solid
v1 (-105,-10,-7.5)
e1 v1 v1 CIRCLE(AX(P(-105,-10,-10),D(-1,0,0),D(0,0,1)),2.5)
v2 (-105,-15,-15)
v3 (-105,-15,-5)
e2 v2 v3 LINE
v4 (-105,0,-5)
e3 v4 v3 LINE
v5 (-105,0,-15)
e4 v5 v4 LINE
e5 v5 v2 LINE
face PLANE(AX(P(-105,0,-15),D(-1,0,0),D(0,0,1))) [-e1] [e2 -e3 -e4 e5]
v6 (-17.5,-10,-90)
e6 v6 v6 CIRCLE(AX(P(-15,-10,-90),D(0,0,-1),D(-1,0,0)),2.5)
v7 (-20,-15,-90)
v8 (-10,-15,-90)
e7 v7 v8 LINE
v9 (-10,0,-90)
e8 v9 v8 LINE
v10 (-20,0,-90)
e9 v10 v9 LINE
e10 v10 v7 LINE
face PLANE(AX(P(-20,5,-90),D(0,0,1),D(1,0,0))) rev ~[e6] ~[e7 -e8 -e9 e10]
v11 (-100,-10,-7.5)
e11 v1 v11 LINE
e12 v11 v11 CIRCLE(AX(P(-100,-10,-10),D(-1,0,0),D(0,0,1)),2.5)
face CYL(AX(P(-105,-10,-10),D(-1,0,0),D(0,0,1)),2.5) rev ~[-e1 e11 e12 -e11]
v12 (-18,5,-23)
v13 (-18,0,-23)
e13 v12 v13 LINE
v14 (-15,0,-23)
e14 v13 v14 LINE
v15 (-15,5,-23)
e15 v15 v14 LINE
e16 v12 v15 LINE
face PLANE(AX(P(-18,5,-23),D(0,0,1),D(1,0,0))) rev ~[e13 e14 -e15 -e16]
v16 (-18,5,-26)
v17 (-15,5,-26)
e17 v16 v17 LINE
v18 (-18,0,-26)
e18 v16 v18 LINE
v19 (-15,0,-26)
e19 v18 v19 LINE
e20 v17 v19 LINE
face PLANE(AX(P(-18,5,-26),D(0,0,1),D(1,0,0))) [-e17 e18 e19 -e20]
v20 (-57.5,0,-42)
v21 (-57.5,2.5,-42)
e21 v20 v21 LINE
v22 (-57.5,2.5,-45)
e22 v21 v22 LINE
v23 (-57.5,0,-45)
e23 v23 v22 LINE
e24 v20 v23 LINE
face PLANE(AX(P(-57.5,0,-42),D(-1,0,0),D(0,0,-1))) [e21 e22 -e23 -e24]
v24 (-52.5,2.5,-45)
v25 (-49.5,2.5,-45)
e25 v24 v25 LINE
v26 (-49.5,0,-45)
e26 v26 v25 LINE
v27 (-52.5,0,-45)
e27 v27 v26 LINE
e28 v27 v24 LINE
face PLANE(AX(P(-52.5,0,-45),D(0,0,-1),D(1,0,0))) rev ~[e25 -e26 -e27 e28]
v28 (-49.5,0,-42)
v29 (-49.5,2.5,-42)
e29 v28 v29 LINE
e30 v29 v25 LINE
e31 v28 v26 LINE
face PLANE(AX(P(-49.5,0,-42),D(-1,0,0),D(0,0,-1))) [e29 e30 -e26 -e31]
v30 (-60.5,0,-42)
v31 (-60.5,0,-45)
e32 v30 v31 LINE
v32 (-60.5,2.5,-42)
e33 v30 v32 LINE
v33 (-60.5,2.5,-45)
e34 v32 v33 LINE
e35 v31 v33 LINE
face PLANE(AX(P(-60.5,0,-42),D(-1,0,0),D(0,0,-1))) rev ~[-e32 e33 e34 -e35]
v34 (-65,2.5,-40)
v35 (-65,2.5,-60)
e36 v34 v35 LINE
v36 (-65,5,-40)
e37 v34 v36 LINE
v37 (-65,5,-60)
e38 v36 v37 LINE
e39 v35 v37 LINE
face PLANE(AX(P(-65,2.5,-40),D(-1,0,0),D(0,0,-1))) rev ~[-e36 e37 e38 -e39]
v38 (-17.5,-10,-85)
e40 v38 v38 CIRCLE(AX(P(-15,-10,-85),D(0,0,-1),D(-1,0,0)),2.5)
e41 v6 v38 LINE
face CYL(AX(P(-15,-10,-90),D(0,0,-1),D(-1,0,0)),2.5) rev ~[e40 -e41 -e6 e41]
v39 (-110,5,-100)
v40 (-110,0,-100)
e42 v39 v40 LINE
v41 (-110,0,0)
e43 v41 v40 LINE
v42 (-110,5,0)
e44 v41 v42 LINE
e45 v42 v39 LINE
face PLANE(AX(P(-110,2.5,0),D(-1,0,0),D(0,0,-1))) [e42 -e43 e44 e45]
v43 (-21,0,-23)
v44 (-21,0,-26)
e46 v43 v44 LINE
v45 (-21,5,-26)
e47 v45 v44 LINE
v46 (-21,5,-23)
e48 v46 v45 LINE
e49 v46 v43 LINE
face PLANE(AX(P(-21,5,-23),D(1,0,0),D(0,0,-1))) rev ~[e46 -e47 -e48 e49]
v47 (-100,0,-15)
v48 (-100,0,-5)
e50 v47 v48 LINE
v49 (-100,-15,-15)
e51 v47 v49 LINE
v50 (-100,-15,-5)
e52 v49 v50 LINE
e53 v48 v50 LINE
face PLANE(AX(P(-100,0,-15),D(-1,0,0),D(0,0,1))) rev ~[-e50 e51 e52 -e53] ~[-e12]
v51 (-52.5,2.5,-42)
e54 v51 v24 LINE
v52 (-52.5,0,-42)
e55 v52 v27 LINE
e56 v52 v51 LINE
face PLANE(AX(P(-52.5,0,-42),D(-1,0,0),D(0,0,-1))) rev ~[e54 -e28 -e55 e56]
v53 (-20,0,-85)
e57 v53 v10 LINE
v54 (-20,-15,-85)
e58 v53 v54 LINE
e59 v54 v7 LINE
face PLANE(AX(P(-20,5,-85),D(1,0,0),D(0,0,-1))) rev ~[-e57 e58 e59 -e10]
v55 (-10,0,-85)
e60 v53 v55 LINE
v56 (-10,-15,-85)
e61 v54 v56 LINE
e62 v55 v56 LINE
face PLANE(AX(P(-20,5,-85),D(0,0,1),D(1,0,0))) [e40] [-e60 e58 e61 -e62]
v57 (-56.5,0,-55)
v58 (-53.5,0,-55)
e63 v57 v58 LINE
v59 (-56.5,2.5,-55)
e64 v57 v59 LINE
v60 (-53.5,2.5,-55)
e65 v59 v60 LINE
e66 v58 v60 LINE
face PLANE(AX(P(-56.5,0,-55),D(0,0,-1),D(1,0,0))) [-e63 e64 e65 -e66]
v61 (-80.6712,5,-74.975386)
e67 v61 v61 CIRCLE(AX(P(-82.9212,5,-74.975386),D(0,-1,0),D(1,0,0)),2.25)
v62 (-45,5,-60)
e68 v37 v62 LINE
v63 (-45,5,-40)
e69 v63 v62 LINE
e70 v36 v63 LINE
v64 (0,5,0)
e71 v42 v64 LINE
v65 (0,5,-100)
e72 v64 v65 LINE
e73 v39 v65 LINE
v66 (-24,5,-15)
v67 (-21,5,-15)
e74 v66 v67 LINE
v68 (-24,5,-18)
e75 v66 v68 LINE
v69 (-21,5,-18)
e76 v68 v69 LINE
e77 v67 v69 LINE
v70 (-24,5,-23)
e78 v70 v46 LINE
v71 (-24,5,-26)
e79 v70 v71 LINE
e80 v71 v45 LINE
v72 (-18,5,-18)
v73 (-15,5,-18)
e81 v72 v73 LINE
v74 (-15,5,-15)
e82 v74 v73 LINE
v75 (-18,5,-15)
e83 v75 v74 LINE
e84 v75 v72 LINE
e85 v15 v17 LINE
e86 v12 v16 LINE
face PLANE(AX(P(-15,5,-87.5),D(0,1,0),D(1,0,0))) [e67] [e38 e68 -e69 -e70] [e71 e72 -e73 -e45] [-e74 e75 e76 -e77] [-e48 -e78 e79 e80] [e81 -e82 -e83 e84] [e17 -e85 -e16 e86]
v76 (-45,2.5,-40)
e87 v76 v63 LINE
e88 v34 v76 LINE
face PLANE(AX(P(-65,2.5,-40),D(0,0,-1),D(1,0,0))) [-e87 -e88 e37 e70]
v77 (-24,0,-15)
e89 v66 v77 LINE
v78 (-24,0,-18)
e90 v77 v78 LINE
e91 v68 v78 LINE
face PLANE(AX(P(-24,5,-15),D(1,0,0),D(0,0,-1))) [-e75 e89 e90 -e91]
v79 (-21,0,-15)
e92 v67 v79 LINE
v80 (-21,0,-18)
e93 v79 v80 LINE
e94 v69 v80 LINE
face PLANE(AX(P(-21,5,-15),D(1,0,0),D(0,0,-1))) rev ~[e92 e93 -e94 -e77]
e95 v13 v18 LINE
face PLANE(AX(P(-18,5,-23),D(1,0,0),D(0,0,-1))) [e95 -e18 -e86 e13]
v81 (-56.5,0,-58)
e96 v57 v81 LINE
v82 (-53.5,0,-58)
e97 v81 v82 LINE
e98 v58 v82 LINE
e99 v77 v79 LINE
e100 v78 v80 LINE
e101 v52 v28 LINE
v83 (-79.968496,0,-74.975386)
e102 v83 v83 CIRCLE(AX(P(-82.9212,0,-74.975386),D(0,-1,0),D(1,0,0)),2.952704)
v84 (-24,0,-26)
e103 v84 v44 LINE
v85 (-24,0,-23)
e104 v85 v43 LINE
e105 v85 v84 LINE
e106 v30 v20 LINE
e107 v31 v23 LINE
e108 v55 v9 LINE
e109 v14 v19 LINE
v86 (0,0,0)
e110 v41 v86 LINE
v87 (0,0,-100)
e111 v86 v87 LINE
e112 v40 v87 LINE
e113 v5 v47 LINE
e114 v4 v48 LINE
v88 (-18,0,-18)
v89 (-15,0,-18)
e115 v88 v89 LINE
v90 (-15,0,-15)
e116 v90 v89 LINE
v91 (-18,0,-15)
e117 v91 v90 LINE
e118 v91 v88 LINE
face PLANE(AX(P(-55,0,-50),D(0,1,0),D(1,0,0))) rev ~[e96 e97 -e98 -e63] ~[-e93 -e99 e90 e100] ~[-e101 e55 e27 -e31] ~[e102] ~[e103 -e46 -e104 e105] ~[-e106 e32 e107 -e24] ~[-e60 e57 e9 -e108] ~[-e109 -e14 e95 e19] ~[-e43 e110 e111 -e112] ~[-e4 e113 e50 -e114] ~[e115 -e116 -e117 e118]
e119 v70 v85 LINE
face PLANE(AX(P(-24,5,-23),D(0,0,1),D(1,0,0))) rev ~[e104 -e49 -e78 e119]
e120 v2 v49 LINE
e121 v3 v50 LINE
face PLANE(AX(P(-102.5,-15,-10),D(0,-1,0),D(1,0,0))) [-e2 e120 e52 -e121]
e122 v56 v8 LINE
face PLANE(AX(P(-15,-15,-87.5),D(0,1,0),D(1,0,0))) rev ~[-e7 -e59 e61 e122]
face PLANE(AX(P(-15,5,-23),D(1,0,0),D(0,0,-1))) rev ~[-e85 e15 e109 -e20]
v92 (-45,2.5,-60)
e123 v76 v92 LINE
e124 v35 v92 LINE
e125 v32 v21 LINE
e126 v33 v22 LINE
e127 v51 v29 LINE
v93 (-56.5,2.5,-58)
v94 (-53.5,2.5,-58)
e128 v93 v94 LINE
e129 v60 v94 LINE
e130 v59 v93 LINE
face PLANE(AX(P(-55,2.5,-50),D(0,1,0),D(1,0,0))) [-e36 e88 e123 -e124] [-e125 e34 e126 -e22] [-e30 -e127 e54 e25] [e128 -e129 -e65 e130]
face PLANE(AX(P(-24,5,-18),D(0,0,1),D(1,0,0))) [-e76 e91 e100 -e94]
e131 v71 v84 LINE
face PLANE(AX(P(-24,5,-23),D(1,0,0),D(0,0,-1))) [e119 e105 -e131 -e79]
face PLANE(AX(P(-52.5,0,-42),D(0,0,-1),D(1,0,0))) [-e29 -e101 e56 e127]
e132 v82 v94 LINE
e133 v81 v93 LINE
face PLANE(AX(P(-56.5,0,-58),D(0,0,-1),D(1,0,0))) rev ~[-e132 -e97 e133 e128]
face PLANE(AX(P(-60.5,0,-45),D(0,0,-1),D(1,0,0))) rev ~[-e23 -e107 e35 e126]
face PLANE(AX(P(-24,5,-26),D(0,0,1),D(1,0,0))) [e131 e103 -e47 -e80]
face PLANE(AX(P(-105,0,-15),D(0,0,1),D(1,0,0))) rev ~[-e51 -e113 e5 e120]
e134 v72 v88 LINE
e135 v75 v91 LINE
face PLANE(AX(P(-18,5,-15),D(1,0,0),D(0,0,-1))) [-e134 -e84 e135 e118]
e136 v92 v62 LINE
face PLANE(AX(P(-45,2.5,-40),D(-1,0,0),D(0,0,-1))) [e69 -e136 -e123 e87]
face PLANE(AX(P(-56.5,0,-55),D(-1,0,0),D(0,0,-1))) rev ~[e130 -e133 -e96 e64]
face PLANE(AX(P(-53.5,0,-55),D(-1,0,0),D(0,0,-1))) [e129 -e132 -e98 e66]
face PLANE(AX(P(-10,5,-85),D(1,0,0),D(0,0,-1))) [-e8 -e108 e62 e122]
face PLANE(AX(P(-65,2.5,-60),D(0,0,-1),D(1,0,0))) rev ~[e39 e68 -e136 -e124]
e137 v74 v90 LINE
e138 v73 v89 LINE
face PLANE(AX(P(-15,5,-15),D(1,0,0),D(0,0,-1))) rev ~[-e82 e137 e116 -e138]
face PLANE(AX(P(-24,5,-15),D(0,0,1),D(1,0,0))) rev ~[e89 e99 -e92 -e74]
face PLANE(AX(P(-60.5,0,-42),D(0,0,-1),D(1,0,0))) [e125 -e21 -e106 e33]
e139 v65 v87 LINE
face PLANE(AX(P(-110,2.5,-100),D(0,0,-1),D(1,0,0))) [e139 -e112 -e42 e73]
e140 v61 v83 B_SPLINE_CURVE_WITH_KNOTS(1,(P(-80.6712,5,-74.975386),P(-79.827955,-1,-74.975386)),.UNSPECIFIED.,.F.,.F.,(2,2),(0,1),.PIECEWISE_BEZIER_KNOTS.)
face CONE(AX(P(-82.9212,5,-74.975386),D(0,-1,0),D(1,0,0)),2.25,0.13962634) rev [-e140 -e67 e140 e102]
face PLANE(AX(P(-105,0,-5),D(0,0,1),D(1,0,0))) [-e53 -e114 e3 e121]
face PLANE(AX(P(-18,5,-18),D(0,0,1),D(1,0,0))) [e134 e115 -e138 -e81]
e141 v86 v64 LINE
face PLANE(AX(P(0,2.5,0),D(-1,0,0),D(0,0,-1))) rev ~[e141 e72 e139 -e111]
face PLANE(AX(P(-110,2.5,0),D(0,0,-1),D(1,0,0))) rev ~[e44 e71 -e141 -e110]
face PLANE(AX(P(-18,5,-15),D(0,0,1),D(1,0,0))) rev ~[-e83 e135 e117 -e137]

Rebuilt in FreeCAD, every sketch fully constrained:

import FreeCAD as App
import Part
import Sketcher
from FreeCAD import Vector
Q = App.Units.Quantity


def add_polygon(sketch, points):
    """Adds a closed chain of lines whose ends are joined by coincident constraints."""
    first, n = sketch.GeometryCount, len(points)
    for a, b in zip(points, points[1:] + points[:1]):
        sketch.addGeometry(Part.LineSegment(App.Vector(*a, 0), App.Vector(*b, 0)), False)
    for i in range(n):
        sketch.addConstraint(Sketcher.Constraint("Coincident", first + i, 2, first + (i + 1) % n, 1))

doc = App.newDocument("Part")
body = doc.addObject("PartDesign::Body", "Body")

# Sketch on XZ plane
sketch1 = body.newObject("Sketcher::SketchObject", "Sketch")
sketch1.AttachmentSupport = (doc.getObject("XZ_Plane"), [""])
sketch1.MapMode = "FlatFace"
add_polygon(sketch1, [(-110, -100), (-110, 0), (0, 0), (0, -100)])  # lines 0-3
add_polygon(sketch1, [(-57.5, -42), (-60.5, -42), (-60.5, -45), (-57.5, -45)])  # lines 4-7
add_polygon(sketch1, [(-49.5, -42), (-52.5, -42), (-52.5, -45), (-49.5, -45)])  # lines 8-11
add_polygon(sketch1, [(-53.5, -55), (-56.5, -55), (-56.5, -58), (-53.5, -58)])  # lines 12-15
sketch1.addConstraint([
    Sketcher.Constraint("Vertical", 0),
    Sketcher.Constraint("Horizontal", 1),
    Sketcher.Constraint("Vertical", 2),
    Sketcher.Constraint("Horizontal", 3),
    Sketcher.Constraint("Horizontal", 4),
    Sketcher.Constraint("Vertical", 5),
    Sketcher.Constraint("Horizontal", 6),
    Sketcher.Constraint("Vertical", 7),
    Sketcher.Constraint("Horizontal", 8),
    Sketcher.Constraint("Vertical", 9),
    Sketcher.Constraint("Horizontal", 10),
    Sketcher.Constraint("Vertical", 11),
    Sketcher.Constraint("Horizontal", 12),
    Sketcher.Constraint("Vertical", 13),
    Sketcher.Constraint("Horizontal", 14),
    Sketcher.Constraint("Vertical", 15),
    Sketcher.Constraint("Coincident", 1, 2, -1, 1),
    Sketcher.Constraint("Horizontal", 7, 2, 8, 2),
    Sketcher.Constraint("Horizontal", 6, 2, 9, 2),
    Sketcher.Constraint("Equal", 6, 8),
    Sketcher.Constraint("Equal", 10, 12),
    Sketcher.Constraint("Equal", 14, 5),
    Sketcher.Constraint("Equal", 11, 13),
    Sketcher.Constraint("DistanceX", 1, 1, 1, 2, Q("110 mm")),
    Sketcher.Constraint("DistanceX", 4, 2, 4, 1, Q("3 mm")),
    Sketcher.Constraint("DistanceY", 0, 1, 0, 2, Q("100 mm")),
    Sketcher.Constraint("DistanceY", 4, 2, -1, 1, Q("42 mm")),
    Sketcher.Constraint("DistanceY", 12, 2, -1, 1, Q("55 mm")),
    Sketcher.Constraint("DistanceX", 7, 2, 8, 2, Q("5 mm")),
    Sketcher.Constraint("DistanceX", 6, 2, 12, 2, Q("1 mm")),
    Sketcher.Constraint("DistanceX", 4, 2, -1, 1, Q("60.5 mm")),
])
pad1 = body.newObject("PartDesign::Pad", "Pad")
pad1.Profile = sketch1
pad1.Length = 2.5
pad1.Reversed = True

# Sketch on XZ plane
sketch2 = body.newObject("Sketcher::SketchObject", "Sketch001")
sketch2.AttachmentSupport = (doc.getObject("XZ_Plane"), [""])
sketch2.MapMode = "FlatFace"
sketch2.AttachmentOffset = App.Placement(Vector(0, 0, -2.5), App.Rotation())
add_polygon(sketch2, [(-110, -100), (-110, 0), (0, 0), (0, -100)])  # lines 0-3
add_polygon(sketch2, [(-45, -40), (-65, -40), (-65, -60), (-45, -60)])  # lines 4-7
sketch2.addConstraint([
    Sketcher.Constraint("Vertical", 0),
    Sketcher.Constraint("Horizontal", 1),
    Sketcher.Constraint("Vertical", 2),
    Sketcher.Constraint("Horizontal", 3),
    Sketcher.Constraint("Horizontal", 4),
    Sketcher.Constraint("Vertical", 5),
    Sketcher.Constraint("Horizontal", 6),
    Sketcher.Constraint("Vertical", 7),
    Sketcher.Constraint("Coincident", 1, 2, -1, 1),
    Sketcher.Constraint("Equal", 6, 5),
    Sketcher.Constraint("DistanceX", 1, 1, 1, 2, Q("110 mm")),
    Sketcher.Constraint("DistanceX", 4, 2, 4, 1, Q("20 mm")),
    Sketcher.Constraint("DistanceY", 0, 1, 0, 2, Q("100 mm")),
    Sketcher.Constraint("DistanceX", 4, 2, -1, 1, Q("65 mm")),
    Sketcher.Constraint("DistanceY", 4, 2, -1, 1, Q("40 mm")),
])
pad2 = body.newObject("PartDesign::Pad", "Pad001")
pad2.Profile = sketch2
pad2.Length = 2.5
pad2.Reversed = True

# Sketch on XZ plane
sketch3 = body.newObject("Sketcher::SketchObject", "Sketch002")
sketch3.AttachmentSupport = (doc.getObject("XZ_Plane"), [""])
sketch3.MapMode = "FlatFace"
sketch3.AttachmentOffset = App.Placement(Vector(0, 0, -5), App.Rotation())
sketch3.addGeometry(Part.Circle(Vector(-82.9, -75, 0), Vector(0, 0, 1), 2.2), False)
sketch3.addConstraint([
    Sketcher.Constraint("Diameter", 0, Q("4.5 mm")),
    Sketcher.Constraint("DistanceX", 0, 3, -1, 1, Q("82.9212 mm")),
    Sketcher.Constraint("DistanceY", 0, 3, -1, 1, Q("74.975386 mm")),
])
pocket1 = body.newObject("PartDesign::Pocket", "Pocket")
pocket1.Profile = sketch3
pocket1.Type = "ThroughAll"
pocket1.Reversed = True
pocket1.TaperAngle = 8

# Sketch on XZ plane
sketch4 = body.newObject("Sketcher::SketchObject", "Sketch003")
sketch4.AttachmentSupport = (doc.getObject("XZ_Plane"), [""])
sketch4.MapMode = "FlatFace"
sketch4.AttachmentOffset = App.Placement(Vector(0, 0, -5), App.Rotation())
add_polygon(sketch4, [(-24, -26), (-24, -23), (-21, -23), (-21, -26)])  # lines 0-3
add_polygon(sketch4, [(-18, -26), (-18, -23), (-15, -23), (-15, -26)])  # lines 4-7
add_polygon(sketch4, [(-24, -18), (-24, -15), (-21, -15), (-21, -18)])  # lines 8-11
add_polygon(sketch4, [(-18, -18), (-18, -15), (-15, -15), (-15, -18)])  # lines 12-15
sketch4.addConstraint([
    Sketcher.Constraint("Vertical", 0),
    Sketcher.Constraint("Horizontal", 1),
    Sketcher.Constraint("Vertical", 2),
    Sketcher.Constraint("Horizontal", 3),
    Sketcher.Constraint("Vertical", 4),
    Sketcher.Constraint("Horizontal", 5),
    Sketcher.Constraint("Vertical", 6),
    Sketcher.Constraint("Horizontal", 7),
    Sketcher.Constraint("Vertical", 8),
    Sketcher.Constraint("Horizontal", 9),
    Sketcher.Constraint("Vertical", 10),
    Sketcher.Constraint("Horizontal", 11),
    Sketcher.Constraint("Vertical", 12),
    Sketcher.Constraint("Horizontal", 13),
    Sketcher.Constraint("Vertical", 14),
    Sketcher.Constraint("Horizontal", 15),
    Sketcher.Constraint("Horizontal", 1, 2, 4, 2),
    Sketcher.Constraint("Horizontal", 3, 2, 6, 2),
    Sketcher.Constraint("Horizontal", 9, 2, 12, 2),
    Sketcher.Constraint("Horizontal", 11, 2, 14, 2),
    Sketcher.Constraint("Vertical", 3, 2, 8, 2),
    Sketcher.Constraint("Vertical", 2, 2, 9, 2),
    Sketcher.Constraint("Vertical", 7, 2, 12, 2),
    Sketcher.Constraint("Vertical", 6, 2, 13, 2),
    Sketcher.Constraint("Equal", 3, 5),
    Sketcher.Constraint("Equal", 15, 0),
    Sketcher.Constraint("Equal", 6, 8),
    Sketcher.Constraint("DistanceX", 1, 1, 1, 2, Q("3 mm")),
    Sketcher.Constraint("DistanceX", 0, 2, -1, 1, Q("24 mm")),
    Sketcher.Constraint("DistanceY", 0, 2, -1, 1, Q("23 mm")),
    Sketcher.Constraint("DistanceX", 4, 2, -1, 1, Q("18 mm")),
    Sketcher.Constraint("DistanceY", 8, 2, -1, 1, Q("15 mm")),
])
pocket2 = body.newObject("PartDesign::Pocket", "Pocket001")
pocket2.Profile = sketch4
pocket2.Type = "ThroughAll"
pocket2.Reversed = True

# Sketch on XZ plane
sketch5 = body.newObject("Sketcher::SketchObject", "Sketch004")
sketch5.AttachmentSupport = (doc.getObject("XZ_Plane"), [""])
sketch5.MapMode = "FlatFace"
sketch5.AttachmentOffset = App.Placement(Vector(0, 0, -5), App.Rotation())
add_polygon(sketch5, [(-20, -90), (-20, -85), (-10, -85), (-10, -90)])  # lines 0-3
sketch5.addConstraint([
    Sketcher.Constraint("Vertical", 0),
    Sketcher.Constraint("Horizontal", 1),
    Sketcher.Constraint("Vertical", 2),
    Sketcher.Constraint("Horizontal", 3),
    Sketcher.Constraint("DistanceX", 1, 1, 1, 2, Q("10 mm")),
    Sketcher.Constraint("DistanceY", 0, 1, 0, 2, Q("5 mm")),
    Sketcher.Constraint("DistanceX", 0, 2, -1, 1, Q("20 mm")),
    Sketcher.Constraint("DistanceY", 0, 2, -1, 1, Q("85 mm")),
])
pad3 = body.newObject("PartDesign::Pad", "Pad002")
pad3.Profile = sketch5
pad3.Length = 20

# Sketch on XY plane
sketch6 = body.newObject("Sketcher::SketchObject", "Sketch005")
sketch6.AttachmentSupport = (doc.getObject("XY_Plane"), [""])
sketch6.MapMode = "FlatFace"
sketch6.AttachmentOffset = App.Placement(Vector(0, 0, -90), App.Rotation())
sketch6.addGeometry(Part.Circle(Vector(-15, -10, 0), Vector(0, 0, 1), 2.5), False)
sketch6.addConstraint([
    Sketcher.Constraint("Diameter", 0, Q("5 mm")),
    Sketcher.Constraint("DistanceX", 0, 3, -1, 1, Q("15 mm")),
    Sketcher.Constraint("DistanceY", 0, 3, -1, 1, Q("10 mm")),
])
pocket3 = body.newObject("PartDesign::Pocket", "Pocket002")
pocket3.Profile = sketch6
pocket3.Length = 15
pocket3.Reversed = True

# Sketch on XZ plane
sketch7 = body.newObject("Sketcher::SketchObject", "Sketch006")
sketch7.AttachmentSupport = (doc.getObject("XZ_Plane"), [""])
sketch7.MapMode = "FlatFace"
add_polygon(sketch7, [(-105, -5), (-105, -15), (-100, -15), (-100, -5)])  # lines 0-3
sketch7.addConstraint([
    Sketcher.Constraint("Vertical", 0),
    Sketcher.Constraint("Horizontal", 1),
    Sketcher.Constraint("Vertical", 2),
    Sketcher.Constraint("Horizontal", 3),
    Sketcher.Constraint("DistanceX", 1, 1, 1, 2, Q("5 mm")),
    Sketcher.Constraint("DistanceY", 0, 2, 0, 1, Q("10 mm")),
    Sketcher.Constraint("DistanceX", 0, 2, -1, 1, Q("105 mm")),
    Sketcher.Constraint("DistanceY", 0, 2, -1, 1, Q("15 mm")),
])
pad4 = body.newObject("PartDesign::Pad", "Pad003")
pad4.Profile = sketch7
pad4.Length = 15

# Sketch on YZ plane
sketch8 = body.newObject("Sketcher::SketchObject", "Sketch007")
sketch8.AttachmentSupport = (doc.getObject("YZ_Plane"), [""])
sketch8.MapMode = "FlatFace"
sketch8.AttachmentOffset = App.Placement(Vector(0, 0, -105), App.Rotation())
sketch8.addGeometry(Part.Circle(Vector(-10, -10, 0), Vector(0, 0, 1), 2.5), False)
sketch8.addConstraint([
    Sketcher.Constraint("Diameter", 0, Q("5 mm")),
    Sketcher.Constraint("DistanceX", 0, 3, -1, 1, Q("10 mm")),
    Sketcher.Constraint("DistanceY", 0, 3, -1, 1, Q("10 mm")),
])
pocket4 = body.newObject("PartDesign::Pocket", "Pocket003")
pocket4.Profile = sketch8
pocket4.Length = 15
pocket4.Reversed = True

doc.recompute()
